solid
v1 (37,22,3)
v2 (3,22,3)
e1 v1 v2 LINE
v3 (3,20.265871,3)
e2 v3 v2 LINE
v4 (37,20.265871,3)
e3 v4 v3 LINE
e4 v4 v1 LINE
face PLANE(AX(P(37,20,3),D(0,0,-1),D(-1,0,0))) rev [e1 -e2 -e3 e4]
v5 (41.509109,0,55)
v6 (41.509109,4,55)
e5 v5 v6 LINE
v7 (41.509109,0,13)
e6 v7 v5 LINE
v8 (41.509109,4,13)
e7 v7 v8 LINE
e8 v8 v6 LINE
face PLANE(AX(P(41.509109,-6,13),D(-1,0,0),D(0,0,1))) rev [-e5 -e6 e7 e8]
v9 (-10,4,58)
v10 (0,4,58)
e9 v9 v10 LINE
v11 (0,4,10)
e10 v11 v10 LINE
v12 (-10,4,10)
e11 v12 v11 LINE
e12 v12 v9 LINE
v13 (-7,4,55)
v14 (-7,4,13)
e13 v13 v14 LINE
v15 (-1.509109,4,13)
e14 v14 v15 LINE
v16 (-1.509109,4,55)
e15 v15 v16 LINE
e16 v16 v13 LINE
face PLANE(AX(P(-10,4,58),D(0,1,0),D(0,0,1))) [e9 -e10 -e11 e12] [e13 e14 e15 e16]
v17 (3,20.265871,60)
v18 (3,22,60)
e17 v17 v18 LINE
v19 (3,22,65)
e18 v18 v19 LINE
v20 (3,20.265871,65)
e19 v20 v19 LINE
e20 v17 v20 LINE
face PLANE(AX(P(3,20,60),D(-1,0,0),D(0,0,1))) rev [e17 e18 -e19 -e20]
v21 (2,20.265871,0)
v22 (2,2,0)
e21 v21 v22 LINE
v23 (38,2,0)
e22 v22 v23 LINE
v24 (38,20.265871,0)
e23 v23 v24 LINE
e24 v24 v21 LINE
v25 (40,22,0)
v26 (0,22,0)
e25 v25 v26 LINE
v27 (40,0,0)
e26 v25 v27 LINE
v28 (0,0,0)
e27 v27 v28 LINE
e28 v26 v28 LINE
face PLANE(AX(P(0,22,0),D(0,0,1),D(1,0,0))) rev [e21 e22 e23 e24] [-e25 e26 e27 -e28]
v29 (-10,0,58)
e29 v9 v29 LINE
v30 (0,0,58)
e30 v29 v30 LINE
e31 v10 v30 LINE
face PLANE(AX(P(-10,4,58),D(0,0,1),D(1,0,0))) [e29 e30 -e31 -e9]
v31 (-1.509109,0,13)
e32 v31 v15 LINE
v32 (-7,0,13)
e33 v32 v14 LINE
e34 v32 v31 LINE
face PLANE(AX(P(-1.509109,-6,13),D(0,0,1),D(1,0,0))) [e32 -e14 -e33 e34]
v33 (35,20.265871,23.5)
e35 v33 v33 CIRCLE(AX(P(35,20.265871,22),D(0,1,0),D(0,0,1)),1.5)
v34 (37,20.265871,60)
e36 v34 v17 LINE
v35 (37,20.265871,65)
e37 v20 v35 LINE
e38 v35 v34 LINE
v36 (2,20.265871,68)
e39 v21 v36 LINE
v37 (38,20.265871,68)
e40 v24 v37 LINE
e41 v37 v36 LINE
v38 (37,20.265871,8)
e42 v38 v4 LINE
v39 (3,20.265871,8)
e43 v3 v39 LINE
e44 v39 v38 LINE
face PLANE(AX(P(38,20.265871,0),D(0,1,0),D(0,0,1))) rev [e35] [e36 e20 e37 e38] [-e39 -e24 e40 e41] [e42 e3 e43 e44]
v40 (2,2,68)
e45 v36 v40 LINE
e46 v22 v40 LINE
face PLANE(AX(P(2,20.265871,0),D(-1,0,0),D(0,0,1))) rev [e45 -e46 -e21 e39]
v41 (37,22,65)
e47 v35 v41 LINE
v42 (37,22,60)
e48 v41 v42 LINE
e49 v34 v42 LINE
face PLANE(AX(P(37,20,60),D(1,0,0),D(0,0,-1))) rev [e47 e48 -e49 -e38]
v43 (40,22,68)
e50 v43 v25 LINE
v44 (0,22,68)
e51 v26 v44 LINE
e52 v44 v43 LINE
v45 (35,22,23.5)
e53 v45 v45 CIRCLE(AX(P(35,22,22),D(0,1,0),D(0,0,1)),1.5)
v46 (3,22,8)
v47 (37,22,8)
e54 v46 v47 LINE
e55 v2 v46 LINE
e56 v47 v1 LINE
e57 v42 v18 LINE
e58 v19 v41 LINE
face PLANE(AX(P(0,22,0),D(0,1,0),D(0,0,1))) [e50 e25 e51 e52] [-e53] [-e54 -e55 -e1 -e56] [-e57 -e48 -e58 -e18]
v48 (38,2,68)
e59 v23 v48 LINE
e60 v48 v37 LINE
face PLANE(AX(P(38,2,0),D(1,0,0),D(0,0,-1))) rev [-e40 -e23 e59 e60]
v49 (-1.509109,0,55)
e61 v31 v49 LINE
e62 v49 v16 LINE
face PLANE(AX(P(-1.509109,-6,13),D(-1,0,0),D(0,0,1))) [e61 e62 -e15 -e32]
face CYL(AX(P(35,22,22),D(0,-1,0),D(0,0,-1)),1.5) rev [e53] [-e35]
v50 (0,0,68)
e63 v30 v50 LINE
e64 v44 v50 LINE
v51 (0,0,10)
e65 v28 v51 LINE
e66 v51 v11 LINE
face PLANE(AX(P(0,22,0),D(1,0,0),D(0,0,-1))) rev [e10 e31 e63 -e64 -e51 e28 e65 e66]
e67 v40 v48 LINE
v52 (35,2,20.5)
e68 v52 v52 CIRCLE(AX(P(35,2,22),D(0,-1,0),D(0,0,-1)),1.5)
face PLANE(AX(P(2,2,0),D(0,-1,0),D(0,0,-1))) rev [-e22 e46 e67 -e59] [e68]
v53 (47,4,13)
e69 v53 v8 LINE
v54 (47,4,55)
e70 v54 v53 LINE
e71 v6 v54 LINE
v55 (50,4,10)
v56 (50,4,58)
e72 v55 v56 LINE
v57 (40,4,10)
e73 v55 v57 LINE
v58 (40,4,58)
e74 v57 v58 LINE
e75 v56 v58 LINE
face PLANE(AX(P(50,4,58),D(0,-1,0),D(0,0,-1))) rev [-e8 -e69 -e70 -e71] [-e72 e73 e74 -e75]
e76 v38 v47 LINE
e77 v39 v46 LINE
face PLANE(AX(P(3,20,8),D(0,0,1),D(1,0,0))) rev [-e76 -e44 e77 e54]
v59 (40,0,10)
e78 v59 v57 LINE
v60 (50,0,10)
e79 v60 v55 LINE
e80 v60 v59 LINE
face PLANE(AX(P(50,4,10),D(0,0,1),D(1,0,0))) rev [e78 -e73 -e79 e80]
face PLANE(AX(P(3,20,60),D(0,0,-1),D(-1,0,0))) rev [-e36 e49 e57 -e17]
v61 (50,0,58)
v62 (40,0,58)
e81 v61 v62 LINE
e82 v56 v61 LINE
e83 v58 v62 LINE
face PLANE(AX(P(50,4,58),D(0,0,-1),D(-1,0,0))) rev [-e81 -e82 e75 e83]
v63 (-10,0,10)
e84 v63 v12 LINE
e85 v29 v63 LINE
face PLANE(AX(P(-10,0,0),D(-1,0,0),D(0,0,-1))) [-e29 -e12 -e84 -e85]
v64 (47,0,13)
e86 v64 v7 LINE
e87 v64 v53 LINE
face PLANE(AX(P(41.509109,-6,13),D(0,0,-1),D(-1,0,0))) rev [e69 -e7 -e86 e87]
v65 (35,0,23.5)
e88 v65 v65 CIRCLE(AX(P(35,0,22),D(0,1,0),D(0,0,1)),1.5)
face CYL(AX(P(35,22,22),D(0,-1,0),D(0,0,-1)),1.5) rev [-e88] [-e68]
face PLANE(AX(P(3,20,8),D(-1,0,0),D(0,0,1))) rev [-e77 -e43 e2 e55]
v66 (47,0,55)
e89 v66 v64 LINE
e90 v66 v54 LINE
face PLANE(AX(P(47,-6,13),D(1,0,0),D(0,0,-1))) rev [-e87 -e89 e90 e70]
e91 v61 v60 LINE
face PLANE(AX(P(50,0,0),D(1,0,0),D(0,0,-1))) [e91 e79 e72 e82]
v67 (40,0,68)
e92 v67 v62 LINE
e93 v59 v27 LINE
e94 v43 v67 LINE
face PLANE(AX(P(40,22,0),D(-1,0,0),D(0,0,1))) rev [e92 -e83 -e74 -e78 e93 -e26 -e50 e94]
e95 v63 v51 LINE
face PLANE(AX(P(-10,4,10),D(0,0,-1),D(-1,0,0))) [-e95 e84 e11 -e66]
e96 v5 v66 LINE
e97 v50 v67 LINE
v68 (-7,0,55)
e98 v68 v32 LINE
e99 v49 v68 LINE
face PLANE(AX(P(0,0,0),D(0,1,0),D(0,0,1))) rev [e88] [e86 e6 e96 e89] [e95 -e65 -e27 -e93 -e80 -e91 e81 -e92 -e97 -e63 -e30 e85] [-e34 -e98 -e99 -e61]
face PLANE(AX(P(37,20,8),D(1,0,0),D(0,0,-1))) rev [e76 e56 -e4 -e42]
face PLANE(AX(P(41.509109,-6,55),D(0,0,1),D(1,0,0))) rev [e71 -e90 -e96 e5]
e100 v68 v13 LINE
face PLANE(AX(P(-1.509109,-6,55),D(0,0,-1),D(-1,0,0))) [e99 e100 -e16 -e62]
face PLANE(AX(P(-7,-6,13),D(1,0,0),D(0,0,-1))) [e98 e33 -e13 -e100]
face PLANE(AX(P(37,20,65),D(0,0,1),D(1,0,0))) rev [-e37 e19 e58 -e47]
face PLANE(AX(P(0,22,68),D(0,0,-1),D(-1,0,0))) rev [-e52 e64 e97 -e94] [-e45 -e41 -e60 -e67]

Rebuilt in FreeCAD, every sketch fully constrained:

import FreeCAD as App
import Part
import Sketcher
Q = App.Units.Quantity

doc = App.newDocument("Part")
params = doc.addObject("Spreadsheet::Sheet", "Params")
for row, (alias, value) in enumerate([
    ("sketch1_diameter", "3 mm"),
    ("sketch1_width", "40 mm"),
    ("sketch1_height", "68 mm"),
    ("pad1_length", "22 mm"),
    ("sketch2_width", "36 mm"),
    ("sketch3_width", "34 mm"),
    ("sketch3_height", "5 mm"),
    ("pocket2_length", "2 mm"),
    ("sketch4_width", "4 mm"),
    ("sketch4_height", "48 mm"),
    ("pad2_length", "10 mm"),
    ("sketch5_height", "42 mm"),
    ("pocket3_length", "10 mm"),
], start=1):
    params.set(f"A{row}", alias)
    params.set(f"B{row}", "=" + value)
    params.setAlias(f"B{row}", alias)

body = doc.addObject("PartDesign::Body", "Body")

sketch1 = body.newObject("Sketcher::SketchObject", "Sketch")
sketch1.AttachmentSupport = (doc.getObject("XZ_Plane"), [""])
sketch1.MapMode = "FlatFace"
sketch1.addGeometry([
    Part.LineSegment(App.Vector(0, 0, 0), App.Vector(0, 68, 0)),
    Part.LineSegment(App.Vector(0, 68, 0), App.Vector(40, 68, 0)),
    Part.LineSegment(App.Vector(40, 68, 0), App.Vector(40, 0, 0)),
    Part.LineSegment(App.Vector(40, 0, 0), App.Vector(0, 0, 0)),
    Part.Circle(App.Vector(35, 22, 0), App.Vector(0, 0, 1), 1.5),
], False)
sketch1.addConstraint([
    Sketcher.Constraint("Coincident", 0, 2, 1, 1),
    Sketcher.Constraint("Coincident", 1, 2, 2, 1),
    Sketcher.Constraint("Coincident", 2, 2, 3, 1),
    Sketcher.Constraint("Coincident", 3, 2, 0, 1),
    Sketcher.Constraint("Vertical", 0),
    Sketcher.Constraint("Horizontal", 1),
    Sketcher.Constraint("Vertical", 2),
    Sketcher.Constraint("Horizontal", 3),
    Sketcher.Constraint("Coincident", 3, 2, -1, 1),
    Sketcher.Constraint("Diameter", 4, Q("3 mm")),
    Sketcher.Constraint("DistanceX", 1, 1, 1, 2, Q("40 mm")),
    Sketcher.Constraint("DistanceY", 0, 1, 0, 2, Q("68 mm")),
    Sketcher.Constraint("DistanceX", -1, 1, 4, 3, Q("35 mm")),
    Sketcher.Constraint("DistanceY", -1, 1, 4, 3, Q("22 mm")),
])
sketch1.setExpression("Constraints[9]", "Params.sketch1_diameter")
sketch1.setExpression("Constraints[10]", "Params.sketch1_width")
sketch1.setExpression("Constraints[11]", "Params.sketch1_height")
pad1 = body.newObject("PartDesign::Pad", "Pad")
pad1.Profile = sketch1
pad1.setExpression("Length", "Params.pad1_length")
pad1.Reversed = True

sketch2 = body.newObject("Sketcher::SketchObject", "Sketch001")
sketch2.AttachmentSupport = (doc.getObject("XY_Plane"), [""])
sketch2.MapMode = "FlatFace"
sketch2.AttachmentOffset = App.Placement(App.Vector(0, 0, 68), App.Rotation())
sketch2.addGeometry([
    Part.LineSegment(App.Vector(2, 20.265871, 0), App.Vector(2, 2, 0)),
    Part.LineSegment(App.Vector(2, 2, 0), App.Vector(38, 2, 0)),
    Part.LineSegment(App.Vector(38, 2, 0), App.Vector(38, 20.265871, 0)),
    Part.LineSegment(App.Vector(38, 20.265871, 0), App.Vector(2, 20.265871, 0)),
], False)
sketch2.addConstraint([
    Sketcher.Constraint("Coincident", 0, 2, 1, 1),
    Sketcher.Constraint("Coincident", 1, 2, 2, 1),
    Sketcher.Constraint("Coincident", 2, 2, 3, 1),
    Sketcher.Constraint("Coincident", 3, 2, 0, 1),
    Sketcher.Constraint("Vertical", 0),
    Sketcher.Constraint("Horizontal", 1),
    Sketcher.Constraint("Vertical", 2),
    Sketcher.Constraint("Horizontal", 3),
    Sketcher.Constraint("DistanceX", 1, 1, 1, 2, Q("36 mm")),
    Sketcher.Constraint("DistanceX", -1, 1, 0, 2, Q("2 mm")),
    Sketcher.Constraint("DistanceY", -1, 1, 0, 2, Q("2 mm")),
    Sketcher.Constraint("DistanceY", 0, 2, 0, 1, Q("18.265871 mm")),
])
sketch2.setExpression("Constraints[8]", "Params.sketch2_width")
pocket1 = body.newObject("PartDesign::Pocket", "Pocket")
pocket1.Profile = sketch2
pocket1.Type = "ThroughAll"

sketch3 = body.newObject("Sketcher::SketchObject", "Sketch002")
sketch3.AttachmentSupport = (doc.getObject("XZ_Plane"), [""])
sketch3.MapMode = "FlatFace"
sketch3.AttachmentOffset = App.Placement(App.Vector(0, 0, -22), App.Rotation())
sketch3.addGeometry([
    Part.LineSegment(App.Vector(3, 60, 0), App.Vector(3, 65, 0)),
    Part.LineSegment(App.Vector(3, 65, 0), App.Vector(37, 65, 0)),
    Part.LineSegment(App.Vector(37, 65, 0), App.Vector(37, 60, 0)),
    Part.LineSegment(App.Vector(37, 60, 0), App.Vector(3, 60, 0)),
    Part.LineSegment(App.Vector(3, 3, 0), App.Vector(3, 8, 0)),
    Part.LineSegment(App.Vector(3, 8, 0), App.Vector(37, 8, 0)),
    Part.LineSegment(App.Vector(37, 8, 0), App.Vector(37, 3, 0)),
    Part.LineSegment(App.Vector(37, 3, 0), App.Vector(3, 3, 0)),
], False)
sketch3.addConstraint([
    Sketcher.Constraint("Coincident", 0, 2, 1, 1),
    Sketcher.Constraint("Coincident", 1, 2, 2, 1),
    Sketcher.Constraint("Coincident", 2, 2, 3, 1),
    Sketcher.Constraint("Coincident", 3, 2, 0, 1),
    Sketcher.Constraint("Coincident", 4, 2, 5, 1),
    Sketcher.Constraint("Coincident", 5, 2, 6, 1),
    Sketcher.Constraint("Coincident", 6, 2, 7, 1),
    Sketcher.Constraint("Coincident", 7, 2, 4, 1),
    Sketcher.Constraint("Vertical", 0),
    Sketcher.Constraint("Horizontal", 1),
    Sketcher.Constraint("Vertical", 2),
    Sketcher.Constraint("Horizontal", 3),
    Sketcher.Constraint("Vertical", 4),
    Sketcher.Constraint("Horizontal", 5),
    Sketcher.Constraint("Vertical", 6),
    Sketcher.Constraint("Horizontal", 7),
    Sketcher.Constraint("Vertical", 3, 2, 4, 2),
    Sketcher.Constraint("Vertical", 2, 2, 5, 2),
    Sketcher.Constraint("Equal", 2, 4),
    Sketcher.Constraint("DistanceX", 1, 1, 1, 2, Q("34 mm")),
    Sketcher.Constraint("DistanceY", 0, 1, 0, 2, Q("5 mm")),
    Sketcher.Constraint("DistanceX", -1, 1, 0, 2, Q("3 mm")),
    Sketcher.Constraint("DistanceY", -1, 1, 0, 2, Q("65 mm")),
    Sketcher.Constraint("DistanceY", -1, 1, 4, 2, Q("8 mm")),
])
sketch3.setExpression("Constraints[19]", "Params.sketch3_width")
sketch3.setExpression("Constraints[20]", "Params.sketch3_height")
pocket2 = body.newObject("PartDesign::Pocket", "Pocket001")
pocket2.Profile = sketch3
pocket2.setExpression("Length", "Params.pocket2_length")
pocket2.Reversed = True

sketch4 = body.newObject("Sketcher::SketchObject", "Sketch003")
sketch4.AttachmentSupport = (doc.getObject("YZ_Plane"), [""])
sketch4.MapMode = "FlatFace"
sketch4.AttachmentOffset = App.Placement(App.Vector(0, 0, 40), App.Rotation())
sketch4.addGeometry([
    Part.LineSegment(App.Vector(4, 58, 0), App.Vector(0, 58, 0)),
    Part.LineSegment(App.Vector(0, 58, 0), App.Vector(0, 10, 0)),
    Part.LineSegment(App.Vector(0, 10, 0), App.Vector(4, 10, 0)),
    Part.LineSegment(App.Vector(4, 10, 0), App.Vector(4, 58, 0)),
], False)
sketch4.addConstraint([
    Sketcher.Constraint("Coincident", 0, 2, 1, 1),
    Sketcher.Constraint("Coincident", 1, 2, 2, 1),
    Sketcher.Constraint("Coincident", 2, 2, 3, 1),
    Sketcher.Constraint("Coincident", 3, 2, 0, 1),
    Sketcher.Constraint("Horizontal", 0),
    Sketcher.Constraint("Vertical", 1),
    Sketcher.Constraint("Horizontal", 2),
    Sketcher.Constraint("Vertical", 3),
    Sketcher.Constraint("PointOnObject", 0, 2, -2),
    Sketcher.Constraint("DistanceX", 0, 2, 0, 1, Q("4 mm")),
    Sketcher.Constraint("DistanceY", 1, 2, 1, 1, Q("48 mm")),
    Sketcher.Constraint("DistanceY", -1, 1, 0, 2, Q("58 mm")),
])
sketch4.setExpression("Constraints[9]", "Params.sketch4_width")
sketch4.setExpression("Constraints[10]", "Params.sketch4_height")
pad2 = body.newObject("PartDesign::Pad", "Pad001")
pad2.Profile = sketch4
pad2.setExpression("Length", "Params.pad2_length")

sketch5 = body.newObject("Sketcher::SketchObject", "Sketch004")
sketch5.AttachmentSupport = (doc.getObject("XZ_Plane"), [""])
sketch5.MapMode = "FlatFace"
sketch5.AttachmentOffset = App.Placement(App.Vector(0, 0, -4), App.Rotation())
sketch5.addGeometry([
    Part.LineSegment(App.Vector(41.509109, 13, 0), App.Vector(41.509109, 55, 0)),
    Part.LineSegment(App.Vector(41.509109, 55, 0), App.Vector(47, 55, 0)),
    Part.LineSegment(App.Vector(47, 55, 0), App.Vector(47, 13, 0)),
    Part.LineSegment(App.Vector(47, 13, 0), App.Vector(41.509109, 13, 0)),
], False)
sketch5.addConstraint([
    Sketcher.Constraint("Coincident", 0, 2, 1, 1),
    Sketcher.Constraint("Coincident", 1, 2, 2, 1),
    Sketcher.Constraint("Coincident", 2, 2, 3, 1),
    Sketcher.Constraint("Coincident", 3, 2, 0, 1),
    Sketcher.Constraint("Vertical", 0),
    Sketcher.Constraint("Horizontal", 1),
    Sketcher.Constraint("Vertical", 2),
    Sketcher.Constraint("Horizontal", 3),
    Sketcher.Constraint("DistanceY", 0, 1, 0, 2, Q("42 mm")),
    Sketcher.Constraint("DistanceY", -1, 1, 0, 2, Q("55 mm")),
    Sketcher.Constraint("DistanceX", -1, 1, 1, 2, Q("47 mm")),
    Sketcher.Constraint("DistanceX", 1, 1, 1, 2, Q("5.490891 mm")),
])
sketch5.setExpression("Constraints[8]", "Params.sketch5_height")
pocket3 = body.newObject("PartDesign::Pocket", "Pocket002")
pocket3.Profile = sketch5
pocket3.setExpression("Length", "Params.pocket3_length")
pocket3.Reversed = True
doc.recompute()

datumplane = body.newObject("PartDesign::Plane", "DatumPlane")
datumplane.AttachmentSupport = (doc.getObject("YZ_Plane"), [""])
datumplane.MapMode = "FlatFace"
datumplane.AttachmentOffset = App.Placement(App.Vector(0, 0, 20), App.Rotation())
mirrored = body.newObject("PartDesign::Mirrored", "Mirrored")
mirrored.Originals = [pad2]
mirrored.MirrorPlane = (datumplane, [""])
body.Tip = mirrored
doc.recompute()

datumplane2 = body.newObject("PartDesign::Plane", "DatumPlane001")
datumplane2.AttachmentSupport = (doc.getObject("YZ_Plane"), [""])
datumplane2.MapMode = "FlatFace"
datumplane2.AttachmentOffset = App.Placement(App.Vector(0, 0, 20), App.Rotation())
mirrored2 = body.newObject("PartDesign::Mirrored", "Mirrored001")
mirrored2.Originals = [pocket3]
mirrored2.MirrorPlane = (datumplane2, [""])
body.Tip = mirrored2

doc.recompute()
